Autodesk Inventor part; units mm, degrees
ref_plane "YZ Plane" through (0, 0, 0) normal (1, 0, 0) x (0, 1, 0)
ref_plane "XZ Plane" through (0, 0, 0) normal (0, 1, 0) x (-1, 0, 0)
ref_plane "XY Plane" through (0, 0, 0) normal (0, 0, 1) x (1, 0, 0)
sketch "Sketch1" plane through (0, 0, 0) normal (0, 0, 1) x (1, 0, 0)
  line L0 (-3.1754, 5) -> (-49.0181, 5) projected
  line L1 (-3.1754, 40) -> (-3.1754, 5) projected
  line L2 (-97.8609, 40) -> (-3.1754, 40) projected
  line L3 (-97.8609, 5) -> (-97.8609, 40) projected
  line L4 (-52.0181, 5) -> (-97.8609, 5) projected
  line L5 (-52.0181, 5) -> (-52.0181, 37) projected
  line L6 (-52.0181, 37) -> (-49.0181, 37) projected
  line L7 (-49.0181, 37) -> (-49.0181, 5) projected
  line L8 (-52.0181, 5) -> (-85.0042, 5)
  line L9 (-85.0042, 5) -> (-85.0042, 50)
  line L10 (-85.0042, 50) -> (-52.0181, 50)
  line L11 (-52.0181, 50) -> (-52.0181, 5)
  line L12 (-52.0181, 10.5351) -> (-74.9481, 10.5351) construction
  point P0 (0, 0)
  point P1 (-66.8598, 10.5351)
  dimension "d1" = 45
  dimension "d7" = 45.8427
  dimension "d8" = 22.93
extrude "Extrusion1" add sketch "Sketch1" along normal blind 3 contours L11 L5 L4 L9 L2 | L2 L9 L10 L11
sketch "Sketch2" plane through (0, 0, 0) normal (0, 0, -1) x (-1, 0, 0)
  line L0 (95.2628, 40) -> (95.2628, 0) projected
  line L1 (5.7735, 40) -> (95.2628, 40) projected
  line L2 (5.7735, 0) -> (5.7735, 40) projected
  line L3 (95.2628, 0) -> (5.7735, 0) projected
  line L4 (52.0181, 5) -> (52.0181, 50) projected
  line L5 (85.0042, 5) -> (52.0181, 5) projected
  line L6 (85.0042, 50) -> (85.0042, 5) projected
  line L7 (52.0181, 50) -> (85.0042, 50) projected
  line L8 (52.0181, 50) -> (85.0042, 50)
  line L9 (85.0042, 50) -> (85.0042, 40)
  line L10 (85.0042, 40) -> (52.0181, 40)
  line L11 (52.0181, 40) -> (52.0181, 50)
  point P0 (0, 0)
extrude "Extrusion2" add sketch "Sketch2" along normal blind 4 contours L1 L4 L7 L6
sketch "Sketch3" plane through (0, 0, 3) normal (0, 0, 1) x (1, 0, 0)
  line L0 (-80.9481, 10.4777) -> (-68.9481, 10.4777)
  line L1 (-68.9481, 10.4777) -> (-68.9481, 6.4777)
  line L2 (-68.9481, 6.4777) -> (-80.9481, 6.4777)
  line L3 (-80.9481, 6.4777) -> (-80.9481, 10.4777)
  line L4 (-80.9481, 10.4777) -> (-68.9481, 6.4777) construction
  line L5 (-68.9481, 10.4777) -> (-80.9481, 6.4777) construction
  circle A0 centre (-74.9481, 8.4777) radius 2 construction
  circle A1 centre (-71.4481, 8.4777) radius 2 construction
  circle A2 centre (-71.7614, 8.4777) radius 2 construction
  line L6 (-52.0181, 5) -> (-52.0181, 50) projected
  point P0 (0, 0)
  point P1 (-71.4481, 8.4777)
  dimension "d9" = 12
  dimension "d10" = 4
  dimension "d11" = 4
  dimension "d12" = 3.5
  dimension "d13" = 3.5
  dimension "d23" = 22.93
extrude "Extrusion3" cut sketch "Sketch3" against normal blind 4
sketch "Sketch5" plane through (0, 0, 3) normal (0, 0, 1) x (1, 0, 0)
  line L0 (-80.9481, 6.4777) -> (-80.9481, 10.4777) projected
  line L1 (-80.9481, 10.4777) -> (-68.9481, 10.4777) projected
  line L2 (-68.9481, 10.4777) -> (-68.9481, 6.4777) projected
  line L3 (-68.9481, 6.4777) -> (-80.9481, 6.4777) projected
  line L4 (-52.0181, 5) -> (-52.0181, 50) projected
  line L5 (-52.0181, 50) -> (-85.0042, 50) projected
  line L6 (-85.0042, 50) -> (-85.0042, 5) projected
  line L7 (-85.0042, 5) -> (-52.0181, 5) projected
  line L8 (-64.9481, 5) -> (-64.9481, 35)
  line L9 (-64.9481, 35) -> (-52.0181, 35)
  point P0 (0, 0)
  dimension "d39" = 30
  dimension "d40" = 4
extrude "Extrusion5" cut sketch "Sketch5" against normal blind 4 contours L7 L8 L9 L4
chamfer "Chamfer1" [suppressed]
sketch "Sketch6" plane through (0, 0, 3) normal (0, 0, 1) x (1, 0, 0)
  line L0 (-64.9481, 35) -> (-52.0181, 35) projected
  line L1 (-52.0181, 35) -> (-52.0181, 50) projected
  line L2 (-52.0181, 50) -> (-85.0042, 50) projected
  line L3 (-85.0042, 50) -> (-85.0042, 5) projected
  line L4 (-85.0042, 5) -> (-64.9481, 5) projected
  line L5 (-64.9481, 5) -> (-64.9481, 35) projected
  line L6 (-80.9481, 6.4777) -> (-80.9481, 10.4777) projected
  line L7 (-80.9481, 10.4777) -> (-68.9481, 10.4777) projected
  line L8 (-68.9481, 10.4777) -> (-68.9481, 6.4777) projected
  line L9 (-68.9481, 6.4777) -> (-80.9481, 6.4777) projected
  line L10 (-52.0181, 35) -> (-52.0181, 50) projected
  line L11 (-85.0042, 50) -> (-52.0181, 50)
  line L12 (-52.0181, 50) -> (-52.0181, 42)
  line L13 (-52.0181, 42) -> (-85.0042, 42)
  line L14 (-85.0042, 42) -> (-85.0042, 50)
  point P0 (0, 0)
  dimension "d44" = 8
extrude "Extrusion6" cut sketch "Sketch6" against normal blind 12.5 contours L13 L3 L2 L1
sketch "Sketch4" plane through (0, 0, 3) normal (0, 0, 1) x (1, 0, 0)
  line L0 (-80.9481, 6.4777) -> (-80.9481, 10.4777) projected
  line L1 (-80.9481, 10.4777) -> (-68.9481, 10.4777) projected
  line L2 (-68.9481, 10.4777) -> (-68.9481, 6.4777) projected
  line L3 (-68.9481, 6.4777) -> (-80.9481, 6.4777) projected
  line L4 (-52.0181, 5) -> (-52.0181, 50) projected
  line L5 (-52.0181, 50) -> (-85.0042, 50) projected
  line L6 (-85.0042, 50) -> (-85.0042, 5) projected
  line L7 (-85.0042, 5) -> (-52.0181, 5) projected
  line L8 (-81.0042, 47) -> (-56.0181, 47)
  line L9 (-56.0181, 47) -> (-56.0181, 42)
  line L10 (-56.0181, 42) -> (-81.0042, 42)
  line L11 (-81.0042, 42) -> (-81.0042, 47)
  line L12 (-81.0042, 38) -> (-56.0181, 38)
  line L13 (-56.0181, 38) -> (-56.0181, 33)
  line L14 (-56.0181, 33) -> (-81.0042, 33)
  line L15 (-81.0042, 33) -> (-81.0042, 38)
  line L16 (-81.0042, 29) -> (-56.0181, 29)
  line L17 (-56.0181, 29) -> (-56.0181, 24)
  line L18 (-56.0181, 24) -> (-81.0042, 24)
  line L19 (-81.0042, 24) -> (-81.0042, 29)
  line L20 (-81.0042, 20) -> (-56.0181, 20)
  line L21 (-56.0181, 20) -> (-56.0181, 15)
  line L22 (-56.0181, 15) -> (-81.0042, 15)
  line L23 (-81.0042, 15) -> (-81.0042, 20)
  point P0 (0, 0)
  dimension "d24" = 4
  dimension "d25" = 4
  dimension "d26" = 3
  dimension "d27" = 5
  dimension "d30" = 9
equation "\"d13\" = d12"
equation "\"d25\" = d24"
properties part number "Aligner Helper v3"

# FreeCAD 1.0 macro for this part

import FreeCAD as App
import Part
import Sketcher
from FreeCAD import Vector
Q = App.Units.Quantity


def add_polygon(sketch, points):
    """Adds a closed chain of lines whose ends are joined by coincident constraints."""
    first, n = sketch.GeometryCount, len(points)
    for a, b in zip(points, points[1:] + points[:1]):
        sketch.addGeometry(Part.LineSegment(App.Vector(*a, 0), App.Vector(*b, 0)), False)
    for i in range(n):
        sketch.addConstraint(Sketcher.Constraint("Coincident", first + i, 2, first + (i + 1) % n, 1))

doc = App.newDocument("Part")
body = doc.addObject("PartDesign::Body", "Body")

# Sketch on XY plane
sketch1 = body.newObject("Sketcher::SketchObject", "Sketch")
sketch1.AttachmentSupport = (doc.getObject("XY_Plane"), [""])
sketch1.MapMode = "FlatFace"
add_polygon(sketch1, [(-52.0181, 50), (-85.0042, 50), (-85.0042, 5), (-52.0181, 5)])  # lines 0-3
sketch1.addConstraint([
    Sketcher.Constraint("Horizontal", 0),
    Sketcher.Constraint("Vertical", 1),
    Sketcher.Constraint("Horizontal", 2),
    Sketcher.Constraint("Vertical", 3),
    Sketcher.Constraint("DistanceY", 1, 2, 1, 1, Q("45 mm")),
    Sketcher.Constraint("DistanceY", -1, 1, 0, 2, Q("50 mm")),
    Sketcher.Constraint("DistanceX", 0, 2, 0, 1, Q("32.986 mm")),
    Sketcher.Constraint("DistanceX", 2, 2, -1, 1, Q("52.018 mm")),
])
pad1 = body.newObject("PartDesign::Pad", "Pad")
pad1.Profile = sketch1
pad1.Length = 3

# Sketch on XY plane
sketch2 = body.newObject("Sketcher::SketchObject", "Sketch001")
sketch2.AttachmentSupport = (doc.getObject("XY_Plane"), [""])
sketch2.MapMode = "FlatFace"
add_polygon(sketch2, [(-52.0181, 40), (-85.0042, 40), (-85.0042, 50), (-52.0181, 50)])  # lines 0-3
sketch2.addConstraint([
    Sketcher.Constraint("Horizontal", 0),
    Sketcher.Constraint("Vertical", 1),
    Sketcher.Constraint("Horizontal", 2),
    Sketcher.Constraint("Vertical", 3),
    Sketcher.Constraint("DistanceY", 1, 1, 1, 2, Q("10 mm")),
    Sketcher.Constraint("DistanceY", -1, 1, 0, 2, Q("40 mm")),
    Sketcher.Constraint("DistanceX", 0, 2, 0, 1, Q("32.986 mm")),
    Sketcher.Constraint("DistanceX", 2, 2, -1, 1, Q("52.018 mm")),
])
pad2 = body.newObject("PartDesign::Pad", "Pad001")
pad2.Profile = sketch2
pad2.Length = 4
pad2.Reversed = True

# Sketch on XY plane
sketch3 = body.newObject("Sketcher::SketchObject", "Sketch002")
sketch3.AttachmentSupport = (doc.getObject("XY_Plane"), [""])
sketch3.MapMode = "FlatFace"
sketch3.AttachmentOffset = App.Placement(Vector(0, 0, 3), App.Rotation())
add_polygon(sketch3, [(-68.9481, 10.4777), (-80.9481, 10.4777), (-80.9481, 6.4777), (-68.9481, 6.4777)])  # lines 0-3
sketch3.addConstraint([
    Sketcher.Constraint("Horizontal", 0),
    Sketcher.Constraint("Vertical", 1),
    Sketcher.Constraint("Horizontal", 2),
    Sketcher.Constraint("Vertical", 3),
    Sketcher.Constraint("DistanceX", 0, 2, 0, 1, Q("12 mm")),
    Sketcher.Constraint("DistanceY", 1, 2, 1, 1, Q("4 mm")),
    Sketcher.Constraint("DistanceX", 0, 2, -1, 1, Q("80.948 mm")),
    Sketcher.Constraint("DistanceY", -1, 1, 0, 2, Q("10.4777 mm")),
])
pocket1 = body.newObject("PartDesign::Pocket", "Pocket")
pocket1.Profile = sketch3
pocket1.Length = 4

# Sketch on XY plane
sketch4 = body.newObject("Sketcher::SketchObject", "Sketch003")
sketch4.AttachmentSupport = (doc.getObject("XY_Plane"), [""])
sketch4.MapMode = "FlatFace"
sketch4.AttachmentOffset = App.Placement(Vector(0, 0, 3), App.Rotation())
add_polygon(sketch4, [(-64.9481, 5), (-52.0181, 5), (-52.0181, 35), (-64.9481, 35)])  # lines 0-3
sketch4.addConstraint([
    Sketcher.Constraint("Horizontal", 0),
    Sketcher.Constraint("Vertical", 1),
    Sketcher.Constraint("Horizontal", 2),
    Sketcher.Constraint("Vertical", 3),
    Sketcher.Constraint("DistanceY", 1, 1, 1, 2, Q("30 mm")),
    Sketcher.Constraint("DistanceY", -1, 1, 0, 2, Q("5 mm")),
    Sketcher.Constraint("DistanceX", 0, 1, 0, 2, Q("12.93 mm")),
    Sketcher.Constraint("DistanceX", 0, 2, -1, 1, Q("52.018 mm")),
])
pocket2 = body.newObject("PartDesign::Pocket", "Pocket001")
pocket2.Profile = sketch4
pocket2.Length = 4

# Sketch on XY plane
sketch5 = body.newObject("Sketcher::SketchObject", "Sketch004")
sketch5.AttachmentSupport = (doc.getObject("XY_Plane"), [""])
sketch5.MapMode = "FlatFace"
sketch5.AttachmentOffset = App.Placement(Vector(0, 0, 3), App.Rotation())
add_polygon(sketch5, [(-85.0042, 42), (-52.0181, 42), (-52.0181, 50), (-85.0042, 50)])  # lines 0-3
sketch5.addConstraint([
    Sketcher.Constraint("Horizontal", 0),
    Sketcher.Constraint("Vertical", 1),
    Sketcher.Constraint("Horizontal", 2),
    Sketcher.Constraint("Vertical", 3),
    Sketcher.Constraint("DistanceY", 1, 1, 1, 2, Q("8 mm")),
    Sketcher.Constraint("DistanceY", -1, 1, 0, 2, Q("42 mm")),
    Sketcher.Constraint("DistanceX", 0, 1, 0, 2, Q("32.986 mm")),
    Sketcher.Constraint("DistanceX", 0, 2, -1, 1, Q("52.018 mm")),
])
pocket3 = body.newObject("PartDesign::Pocket", "Pocket002")
pocket3.Profile = sketch5
pocket3.Length = 12.5

doc.recompute()
